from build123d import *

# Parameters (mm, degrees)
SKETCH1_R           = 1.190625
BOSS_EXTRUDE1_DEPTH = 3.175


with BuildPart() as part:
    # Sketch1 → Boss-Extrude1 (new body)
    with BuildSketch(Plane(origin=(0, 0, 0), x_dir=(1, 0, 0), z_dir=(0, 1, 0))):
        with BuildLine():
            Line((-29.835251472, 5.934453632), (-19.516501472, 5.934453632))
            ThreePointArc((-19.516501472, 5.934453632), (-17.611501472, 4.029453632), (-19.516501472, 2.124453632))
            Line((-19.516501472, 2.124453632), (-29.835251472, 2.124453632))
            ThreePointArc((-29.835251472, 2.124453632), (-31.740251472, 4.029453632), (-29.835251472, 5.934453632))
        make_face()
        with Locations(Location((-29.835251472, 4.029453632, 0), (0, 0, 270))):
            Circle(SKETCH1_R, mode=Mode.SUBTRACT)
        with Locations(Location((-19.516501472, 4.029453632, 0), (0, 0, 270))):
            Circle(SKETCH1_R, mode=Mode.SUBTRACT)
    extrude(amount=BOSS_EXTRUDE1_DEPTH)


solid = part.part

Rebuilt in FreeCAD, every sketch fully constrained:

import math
import FreeCAD as App
import Part
import Sketcher
from FreeCAD import Vector
Q = App.Units.Quantity

doc = App.newDocument("Part")
body = doc.addObject("PartDesign::Body", "Body")

# Sketch on XZ plane
sketch1 = body.newObject("Sketcher::SketchObject", "Sketch")
sketch1.AttachmentSupport = (doc.getObject("XZ_Plane"), [""])
sketch1.MapMode = "FlatFace"
sketch1.addGeometry(Part.LineSegment(Vector(-19.5, -5.9, 0), Vector(-29.8, -5.9, 0)), False)
sketch1.addGeometry(Part.ArcOfCircle(Part.Circle(Vector(-29.8, -4, 0), Vector(0, 0, 1), 1.9), math.radians(90), math.radians(270)), False)
sketch1.addGeometry(Part.LineSegment(Vector(-29.8, -2.1, 0), Vector(-19.5, -2.1, 0)), False)
sketch1.addGeometry(Part.ArcOfCircle(Part.Circle(Vector(-19.5, -4, 0), Vector(0, 0, 1), 1.9), math.radians(-90), math.radians(90)), False)
sketch1.addGeometry(Part.Circle(Vector(-19.5, -4, 0), Vector(0, 0, 1), 1.2), False)
sketch1.addGeometry(Part.Circle(Vector(-29.8, -4, 0), Vector(0, 0, 1), 1.2), False)
sketch1.addConstraint(Sketcher.Constraint("Tangent", 0, 2, 1, 2))
sketch1.addConstraint(Sketcher.Constraint("Tangent", 1, 1, 2, 1))
sketch1.addConstraint(Sketcher.Constraint("Tangent", 2, 2, 3, 2))
sketch1.addConstraint(Sketcher.Constraint("Tangent", 3, 1, 0, 1))
sketch1.addConstraint(Sketcher.Constraint("Horizontal", 0))
sketch1.addConstraint(Sketcher.Constraint("Horizontal", 2))
sketch1.addConstraint(Sketcher.Constraint("Coincident", 4, 3, 3, 3))
sketch1.addConstraint(Sketcher.Constraint("Coincident", 5, 3, 1, 3))
sketch1.addConstraint(Sketcher.Constraint("Equal", 4, 5))
sketch1.addConstraint(Sketcher.Constraint("Diameter", 4, Q("0.09375 in")))
sketch1.addConstraint(Sketcher.Constraint("Radius", 1, Q("0.075 in")))
sketch1.addConstraint(Sketcher.Constraint("DistanceX", 0, 2, 0, 1, Q("0.40625 in")))
sketch1.addConstraint(Sketcher.Constraint("DistanceX", 3, 3, -1, 1, Q("19.516501 mm")))
sketch1.addConstraint(Sketcher.Constraint("DistanceY", 1, 3, -1, 1, Q("4.029454 mm")))
pad1 = body.newObject("PartDesign::Pad", "Pad")
pad1.Profile = sketch1
pad1.Length = Q("0.125 in")
pad1.Reversed = True

doc.recompute()
